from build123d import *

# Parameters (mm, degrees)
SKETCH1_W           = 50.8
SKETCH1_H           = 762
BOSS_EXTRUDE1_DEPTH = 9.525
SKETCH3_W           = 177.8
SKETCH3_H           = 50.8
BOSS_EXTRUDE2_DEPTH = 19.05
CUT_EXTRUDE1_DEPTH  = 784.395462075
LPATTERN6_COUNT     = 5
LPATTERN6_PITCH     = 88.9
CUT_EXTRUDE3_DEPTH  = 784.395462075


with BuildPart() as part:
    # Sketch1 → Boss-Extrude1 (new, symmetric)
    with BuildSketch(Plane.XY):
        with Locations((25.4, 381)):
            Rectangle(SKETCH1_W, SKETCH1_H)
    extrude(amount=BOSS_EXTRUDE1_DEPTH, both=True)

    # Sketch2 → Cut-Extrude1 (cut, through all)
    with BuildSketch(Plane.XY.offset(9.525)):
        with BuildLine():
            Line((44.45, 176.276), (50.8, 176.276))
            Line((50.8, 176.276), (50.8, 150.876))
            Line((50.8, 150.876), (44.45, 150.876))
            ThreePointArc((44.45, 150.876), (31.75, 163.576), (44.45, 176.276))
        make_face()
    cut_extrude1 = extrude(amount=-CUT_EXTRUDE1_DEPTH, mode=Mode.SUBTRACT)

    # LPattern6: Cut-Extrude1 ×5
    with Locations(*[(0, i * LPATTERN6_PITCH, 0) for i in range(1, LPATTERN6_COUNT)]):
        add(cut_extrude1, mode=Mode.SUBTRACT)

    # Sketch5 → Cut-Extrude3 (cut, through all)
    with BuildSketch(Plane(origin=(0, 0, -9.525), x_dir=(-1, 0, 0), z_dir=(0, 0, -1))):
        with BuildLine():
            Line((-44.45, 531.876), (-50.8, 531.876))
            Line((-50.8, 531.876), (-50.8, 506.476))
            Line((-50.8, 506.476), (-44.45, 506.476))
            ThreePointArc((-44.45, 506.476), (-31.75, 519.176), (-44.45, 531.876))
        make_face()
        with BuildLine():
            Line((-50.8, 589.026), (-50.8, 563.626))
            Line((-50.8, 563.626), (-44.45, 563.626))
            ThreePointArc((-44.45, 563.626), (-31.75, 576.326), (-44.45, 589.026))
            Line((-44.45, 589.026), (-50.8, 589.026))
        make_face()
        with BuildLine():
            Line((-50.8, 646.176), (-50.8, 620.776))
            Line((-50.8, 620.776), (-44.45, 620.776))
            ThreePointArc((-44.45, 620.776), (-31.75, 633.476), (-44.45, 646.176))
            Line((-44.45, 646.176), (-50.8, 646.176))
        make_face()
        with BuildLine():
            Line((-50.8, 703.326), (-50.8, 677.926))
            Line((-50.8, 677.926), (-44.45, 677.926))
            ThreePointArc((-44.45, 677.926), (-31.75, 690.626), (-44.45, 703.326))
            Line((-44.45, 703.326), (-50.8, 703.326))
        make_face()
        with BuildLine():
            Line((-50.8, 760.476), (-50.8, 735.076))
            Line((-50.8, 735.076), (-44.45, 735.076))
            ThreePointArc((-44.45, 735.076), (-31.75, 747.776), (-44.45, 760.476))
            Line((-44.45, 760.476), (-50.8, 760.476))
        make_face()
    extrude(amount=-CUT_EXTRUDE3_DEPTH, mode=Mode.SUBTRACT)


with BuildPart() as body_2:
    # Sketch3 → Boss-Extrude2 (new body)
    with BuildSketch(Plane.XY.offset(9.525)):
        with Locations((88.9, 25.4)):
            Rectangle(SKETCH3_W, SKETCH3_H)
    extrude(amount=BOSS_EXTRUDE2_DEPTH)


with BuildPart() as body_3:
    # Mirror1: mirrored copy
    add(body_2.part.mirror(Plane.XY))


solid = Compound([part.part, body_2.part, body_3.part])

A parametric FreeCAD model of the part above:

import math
import FreeCAD as App
import Part
import Sketcher

V = App.Vector
Q = App.Units.Quantity


def add_polygon(sketch, points):
    """Adds a closed chain of lines whose ends are joined by coincident constraints."""
    first, n = sketch.GeometryCount, len(points)
    for a, b in zip(points, points[1:] + points[:1]):
        sketch.addGeometry(Part.LineSegment(App.Vector(*a, 0), App.Vector(*b, 0)), False)
    for i in range(n):
        sketch.addConstraint(Sketcher.Constraint("Coincident", first + i, 2, first + (i + 1) % n, 1))

doc = App.newDocument("Part")
body = doc.addObject("PartDesign::Body", "Body")

# Sketch on XY plane
sketch1 = body.newObject("Sketcher::SketchObject", "Sketch")
sketch1.AttachmentSupport = (doc.getObject("XY_Plane"), [""])
sketch1.MapMode = "FlatFace"
add_polygon(sketch1, [(0, 762), (0, 0), (51, 0), (51, 762)])  # lines 0-3
sketch1.addConstraint([
    Sketcher.Constraint("Vertical", 0),
    Sketcher.Constraint("Horizontal", 1),
    Sketcher.Constraint("Vertical", 2),
    Sketcher.Constraint("Horizontal", 3),
    Sketcher.Constraint("Coincident", 0, 2, -1, 1),
    Sketcher.Constraint("DistanceX", 1, 1, 1, 2, Q("2 in")),
    Sketcher.Constraint("DistanceY", 0, 2, 0, 1, Q("30 in")),
])
pad1 = body.newObject("PartDesign::Pad", "Pad")
pad1.Profile = sketch1
pad1.Length = Q("0.75 in")
pad1.Midplane = True

# Sketch on XY plane
sketch2 = body.newObject("Sketcher::SketchObject", "Sketch001")
sketch2.AttachmentSupport = (doc.getObject("XY_Plane"), [""])
sketch2.MapMode = "FlatFace"
sketch2.AttachmentOffset = App.Placement(V(0, 0, 0.375 * 25.4), App.Rotation())
sketch2.addGeometry([
    Part.LineSegment(V(51, 176, 0), V(44, 176, 0)),
    Part.ArcOfCircle(Part.Circle(V(44, 164, 0), V(0, 0, 1), 13), math.radians(90), math.radians(270)),
    Part.LineSegment(V(44, 151, 0), V(51, 151, 0)),
    Part.LineSegment(V(51, 151, 0), V(51, 176, 0)),
], False)
sketch2.addConstraint([
    Sketcher.Constraint("Tangent", 0, 2, 1, 1),
    Sketcher.Constraint("Tangent", 1, 2, 2, 1),
    Sketcher.Constraint("Coincident", 2, 2, 3, 1),
    Sketcher.Constraint("Coincident", 3, 2, 0, 1),
    Sketcher.Constraint("Horizontal", 0),
    Sketcher.Constraint("Horizontal", 2),
    Sketcher.Constraint("Vertical", 3),
    Sketcher.Constraint("Radius", 1, Q("0.5 in")),
    Sketcher.Constraint("DistanceX", -1, 1, 2, 2, Q("2 in")),
    Sketcher.Constraint("DistanceX", 0, 2, 0, 1, Q("0.25 in")),
    Sketcher.Constraint("DistanceY", -1, 1, 1, 3, Q("6.44 in")),
])
pocket1 = body.newObject("PartDesign::Pocket", "Pocket")
pocket1.Profile = sketch2
pocket1.Type = "ThroughAll"
doc.recompute()

linearpattern = body.newObject("PartDesign::LinearPattern", "LinearPattern")
linearpattern.Originals = [pocket1]
linearpattern.Direction = (doc.getObject("Y_Axis"), [""])
linearpattern.Mode = "offset"
linearpattern.Offset = Q("3.5 in")
linearpattern.Occurrences = 5
body.Tip = linearpattern

# Sketch on XY plane
sketch3 = body.newObject("Sketcher::SketchObject", "Sketch002")
sketch3.AttachmentSupport = (doc.getObject("XY_Plane"), [""])
sketch3.MapMode = "FlatFace"
sketch3.AttachmentOffset = App.Placement(V(0, 0, -0.375 * 25.4), App.Rotation())
sketch3.addGeometry([
    Part.LineSegment(V(44, 532, 0), V(51, 532, 0)),  # 0
    Part.LineSegment(V(51, 532, 0), V(51, 506, 0)),  # 1
    Part.LineSegment(V(51, 506, 0), V(44, 506, 0)),  # 2
    Part.ArcOfCircle(Part.Circle(V(44, 519, 0), V(0, 0, 1), 13), math.radians(90), math.radians(270)),  # 3
    Part.LineSegment(V(51, 589, 0), V(51, 564, 0)),  # 4
    Part.LineSegment(V(51, 564, 0), V(44, 564, 0)),  # 5
    Part.ArcOfCircle(Part.Circle(V(44, 576, 0), V(0, 0, 1), 13), math.radians(90), math.radians(270)),  # 6
    Part.LineSegment(V(44, 589, 0), V(51, 589, 0)),  # 7
    Part.LineSegment(V(51, 646, 0), V(51, 621, 0)),  # 8
    Part.LineSegment(V(51, 621, 0), V(44, 621, 0)),  # 9
    Part.ArcOfCircle(Part.Circle(V(44, 633, 0), V(0, 0, 1), 13), math.radians(90), math.radians(270)),  # 10
    Part.LineSegment(V(44, 646, 0), V(51, 646, 0)),  # 11
    Part.LineSegment(V(51, 703, 0), V(51, 678, 0)),  # 12
    Part.LineSegment(V(51, 678, 0), V(44, 678, 0)),  # 13
    Part.ArcOfCircle(Part.Circle(V(44, 691, 0), V(0, 0, 1), 13), math.radians(90), math.radians(270)),  # 14
    Part.LineSegment(V(44, 703, 0), V(51, 703, 0)),  # 15
    Part.LineSegment(V(51, 760, 0), V(51, 735, 0)),  # 16
    Part.LineSegment(V(51, 735, 0), V(44, 735, 0)),  # 17
    Part.ArcOfCircle(Part.Circle(V(44, 748, 0), V(0, 0, 1), 13), math.radians(90), math.radians(270)),  # 18
    Part.LineSegment(V(44, 760, 0), V(51, 760, 0)),  # 19
], False)
sketch3.addConstraint([
    Sketcher.Constraint("Coincident", 0, 2, 1, 1),
    Sketcher.Constraint("Coincident", 1, 2, 2, 1),
    Sketcher.Constraint("Tangent", 2, 2, 3, 2),
    Sketcher.Constraint("Tangent", 3, 1, 0, 1),
    Sketcher.Constraint("Coincident", 4, 2, 5, 1),
    Sketcher.Constraint("Tangent", 5, 2, 6, 2),
    Sketcher.Constraint("Tangent", 6, 1, 7, 1),
    Sketcher.Constraint("Coincident", 7, 2, 4, 1),
    Sketcher.Constraint("Coincident", 8, 2, 9, 1),
    Sketcher.Constraint("Tangent", 9, 2, 10, 2),
    Sketcher.Constraint("Tangent", 10, 1, 11, 1),
    Sketcher.Constraint("Coincident", 11, 2, 8, 1),
    Sketcher.Constraint("Coincident", 12, 2, 13, 1),
    Sketcher.Constraint("Tangent", 13, 2, 14, 2),
    Sketcher.Constraint("Tangent", 14, 1, 15, 1),
    Sketcher.Constraint("Coincident", 15, 2, 12, 1),
    Sketcher.Constraint("Coincident", 16, 2, 17, 1),
    Sketcher.Constraint("Tangent", 17, 2, 18, 2),
    Sketcher.Constraint("Tangent", 18, 1, 19, 1),
    Sketcher.Constraint("Coincident", 19, 2, 16, 1),
    Sketcher.Constraint("Horizontal", 0),
    Sketcher.Constraint("Vertical", 1),
    Sketcher.Constraint("Horizontal", 2),
    Sketcher.Constraint("Vertical", 4),
    Sketcher.Constraint("Horizontal", 5),
    Sketcher.Constraint("Horizontal", 7),
    Sketcher.Constraint("Vertical", 8),
    Sketcher.Constraint("Horizontal", 9),
    Sketcher.Constraint("Horizontal", 11),
    Sketcher.Constraint("Vertical", 12),
    Sketcher.Constraint("Horizontal", 13),
    Sketcher.Constraint("Horizontal", 15),
    Sketcher.Constraint("Vertical", 16),
    Sketcher.Constraint("Horizontal", 17),
    Sketcher.Constraint("Horizontal", 19),
    Sketcher.Constraint("Equal", 3, 6),
    Sketcher.Constraint("Equal", 6, 10),
    Sketcher.Constraint("Equal", 10, 14),
    Sketcher.Constraint("Equal", 14, 18),
    Sketcher.Constraint("Vertical", 3, 3, 6, 3),
    Sketcher.Constraint("Vertical", 6, 3, 10, 3),
    Sketcher.Constraint("Vertical", 10, 3, 14, 3),
    Sketcher.Constraint("Vertical", 14, 3, 18, 3),
    Sketcher.Constraint("Vertical", 1, 2, 4, 2),
    Sketcher.Constraint("Vertical", 7, 2, 8, 2),
    Sketcher.Constraint("Vertical", 11, 2, 12, 2),
    Sketcher.Constraint("Vertical", 15, 2, 16, 2),
    Sketcher.Constraint("Radius", 3, Q("0.5 in")),
    Sketcher.Constraint("DistanceX", -1, 1, 0, 2, Q("2 in")),
    Sketcher.Constraint("DistanceY", 3, 3, 18, 3, Q("9 in")),
    Sketcher.Constraint("DistanceY", 0, 2, 10, 3, Q("4 in")),
    Sketcher.Constraint("DistanceX", 0, 1, 0, 2, Q("0.25 in")),
    Sketcher.Constraint("DistanceY", 6, 3, 14, 3, Q("4.5 in")),
    Sketcher.Constraint("DistanceY", -1, 1, 3, 3, Q("20.44 in")),
    Sketcher.Constraint("DistanceY", -1, 1, 6, 3, Q("22.69 in")),
])
pocket2 = body.newObject("PartDesign::Pocket", "Pocket001")
pocket2.Profile = sketch3
pocket2.Type = "ThroughAll"
pocket2.Reversed = True
body2 = doc.addObject("PartDesign::Body", "Body001")

# Sketch on XY plane
sketch4 = body2.newObject("Sketcher::SketchObject", "Sketch003")
sketch4.AttachmentSupport = (doc.getObject("XY_Plane001"), [""])
sketch4.MapMode = "FlatFace"
sketch4.AttachmentOffset = App.Placement(V(0, 0, 0.375 * 25.4), App.Rotation())
add_polygon(sketch4, [(0, 51), (0, 0), (178, 0), (178, 51)])  # lines 0-3
sketch4.addConstraint([
    Sketcher.Constraint("Vertical", 0),
    Sketcher.Constraint("Horizontal", 1),
    Sketcher.Constraint("Vertical", 2),
    Sketcher.Constraint("Horizontal", 3),
    Sketcher.Constraint("Coincident", 0, 2, -1, 1),
    Sketcher.Constraint("DistanceX", 1, 1, 1, 2, Q("7 in")),
    Sketcher.Constraint("DistanceY", 0, 2, 0, 1, Q("2 in")),
])
pad2 = body2.newObject("PartDesign::Pad", "Pad001")
pad2.Profile = sketch4
pad2.Length = Q("0.75 in")
body3 = doc.addObject("PartDesign::Body", "Body002")
doc.recompute()

mirroring = doc.addObject("Part::Mirroring", "Mirroring")
mirroring.Source = body2
mirroring.Base = V(0, 0, 0)
mirroring.Normal = V(0, 0, 1)
body3.BaseFeature = mirroring
doc.recompute()
mirroring.Visibility = False

doc.recompute()
